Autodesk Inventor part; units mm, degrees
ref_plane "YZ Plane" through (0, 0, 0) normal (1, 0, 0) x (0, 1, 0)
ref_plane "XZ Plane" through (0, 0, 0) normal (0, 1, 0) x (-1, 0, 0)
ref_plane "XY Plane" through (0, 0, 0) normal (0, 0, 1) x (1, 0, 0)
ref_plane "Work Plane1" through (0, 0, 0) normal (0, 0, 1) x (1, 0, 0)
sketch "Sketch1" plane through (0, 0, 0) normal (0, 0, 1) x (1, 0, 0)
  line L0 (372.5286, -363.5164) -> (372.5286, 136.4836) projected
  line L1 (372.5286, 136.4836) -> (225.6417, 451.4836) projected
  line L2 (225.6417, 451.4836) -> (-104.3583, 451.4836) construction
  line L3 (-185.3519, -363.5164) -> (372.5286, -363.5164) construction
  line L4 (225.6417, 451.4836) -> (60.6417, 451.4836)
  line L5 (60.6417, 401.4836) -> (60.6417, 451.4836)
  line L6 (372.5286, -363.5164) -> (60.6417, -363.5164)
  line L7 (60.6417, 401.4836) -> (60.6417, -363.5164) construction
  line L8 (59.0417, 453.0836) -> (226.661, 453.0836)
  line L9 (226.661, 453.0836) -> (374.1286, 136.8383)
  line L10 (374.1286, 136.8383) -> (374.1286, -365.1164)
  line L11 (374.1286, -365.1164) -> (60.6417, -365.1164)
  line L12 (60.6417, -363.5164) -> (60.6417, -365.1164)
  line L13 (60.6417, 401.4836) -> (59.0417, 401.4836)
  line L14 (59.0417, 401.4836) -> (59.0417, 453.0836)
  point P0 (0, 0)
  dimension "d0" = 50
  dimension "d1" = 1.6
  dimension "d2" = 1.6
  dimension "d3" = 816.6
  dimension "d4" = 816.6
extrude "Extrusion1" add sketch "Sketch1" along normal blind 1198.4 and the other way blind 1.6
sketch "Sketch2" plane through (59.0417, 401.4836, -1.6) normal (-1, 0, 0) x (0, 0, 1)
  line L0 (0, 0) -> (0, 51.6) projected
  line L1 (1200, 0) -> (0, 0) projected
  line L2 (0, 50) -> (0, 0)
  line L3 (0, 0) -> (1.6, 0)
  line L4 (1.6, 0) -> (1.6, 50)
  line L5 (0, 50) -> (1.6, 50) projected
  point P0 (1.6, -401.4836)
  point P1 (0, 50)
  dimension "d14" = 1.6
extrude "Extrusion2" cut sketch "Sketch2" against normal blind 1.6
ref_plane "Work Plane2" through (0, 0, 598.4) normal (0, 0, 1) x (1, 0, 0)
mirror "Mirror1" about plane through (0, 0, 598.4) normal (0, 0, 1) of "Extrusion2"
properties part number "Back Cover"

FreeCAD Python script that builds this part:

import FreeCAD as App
import Part
import Sketcher
Q = App.Units.Quantity

doc = App.newDocument("Part")
body = doc.addObject("PartDesign::Body", "Body")

# Sketch on XY plane
sketch1 = body.newObject("Sketcher::SketchObject", "Sketch")
sketch1.AttachmentSupport = (doc.getObject("XY_Plane"), [""])
sketch1.MapMode = "FlatFace"
sketch1.addGeometry(Part.LineSegment(App.Vector(372.5, 136.5, 0), App.Vector(372.5, -363.5, 0)), False)
sketch1.addGeometry(Part.LineSegment(App.Vector(372.5, -363.5, 0), App.Vector(60.6, -363.5, 0)), False)
sketch1.addGeometry(Part.LineSegment(App.Vector(60.6, -363.5, 0), App.Vector(60.6, -365.1, 0)), False)
sketch1.addGeometry(Part.LineSegment(App.Vector(60.6, -365.1, 0), App.Vector(374.1, -365.1, 0)), False)
sketch1.addGeometry(Part.LineSegment(App.Vector(374.1, -365.1, 0), App.Vector(374.1, 136.8, 0)), False)
sketch1.addGeometry(Part.LineSegment(App.Vector(374.1, 136.8, 0), App.Vector(226.7, 453.1, 0)), False)
sketch1.addGeometry(Part.LineSegment(App.Vector(226.7, 453.1, 0), App.Vector(59, 453.1, 0)), False)
sketch1.addGeometry(Part.LineSegment(App.Vector(59, 453.1, 0), App.Vector(59, 401.5, 0)), False)
sketch1.addGeometry(Part.LineSegment(App.Vector(59, 401.5, 0), App.Vector(60.6, 401.5, 0)), False)
sketch1.addGeometry(Part.LineSegment(App.Vector(60.6, 401.5, 0), App.Vector(60.6, 451.5, 0)), False)
sketch1.addGeometry(Part.LineSegment(App.Vector(60.6, 451.5, 0), App.Vector(225.6, 451.5, 0)), False)
sketch1.addGeometry(Part.LineSegment(App.Vector(225.6, 451.5, 0), App.Vector(372.5, 136.5, 0)), False)
sketch1.addConstraint(Sketcher.Constraint("Coincident", 0, 2, 1, 1))
sketch1.addConstraint(Sketcher.Constraint("Coincident", 1, 2, 2, 1))
sketch1.addConstraint(Sketcher.Constraint("Coincident", 2, 2, 3, 1))
sketch1.addConstraint(Sketcher.Constraint("Coincident", 3, 2, 4, 1))
sketch1.addConstraint(Sketcher.Constraint("Coincident", 4, 2, 5, 1))
sketch1.addConstraint(Sketcher.Constraint("Coincident", 5, 2, 6, 1))
sketch1.addConstraint(Sketcher.Constraint("Coincident", 6, 2, 7, 1))
sketch1.addConstraint(Sketcher.Constraint("Coincident", 7, 2, 8, 1))
sketch1.addConstraint(Sketcher.Constraint("Coincident", 8, 2, 9, 1))
sketch1.addConstraint(Sketcher.Constraint("Coincident", 9, 2, 10, 1))
sketch1.addConstraint(Sketcher.Constraint("Coincident", 10, 2, 11, 1))
sketch1.addConstraint(Sketcher.Constraint("Coincident", 11, 2, 0, 1))
sketch1.addConstraint(Sketcher.Constraint("Vertical", 0))
sketch1.addConstraint(Sketcher.Constraint("Horizontal", 1))
sketch1.addConstraint(Sketcher.Constraint("Vertical", 2))
sketch1.addConstraint(Sketcher.Constraint("Horizontal", 3))
sketch1.addConstraint(Sketcher.Constraint("Vertical", 4))
sketch1.addConstraint(Sketcher.Constraint("Horizontal", 6))
sketch1.addConstraint(Sketcher.Constraint("Vertical", 7))
sketch1.addConstraint(Sketcher.Constraint("Horizontal", 8))
sketch1.addConstraint(Sketcher.Constraint("Vertical", 9))
sketch1.addConstraint(Sketcher.Constraint("Horizontal", 10))
sketch1.addConstraint(Sketcher.Constraint("Parallel", 5, 11))
sketch1.addConstraint(Sketcher.Constraint("Vertical", 2, 2, 8, 2))
sketch1.addConstraint(Sketcher.Constraint("Equal", 8, 2))
sketch1.addConstraint(Sketcher.Constraint("DistanceX", 8, 1, 8, 2, Q("0.063 in")))
sketch1.addConstraint(Sketcher.Constraint("DistanceY", 9, 1, 9, 2, Q("1.9685 in")))
sketch1.addConstraint(Sketcher.Constraint("Angle", 5, Q("115 deg")))
sketch1.addConstraint(Sketcher.Constraint("DistanceX", 0, 2, 3, 2, Q("0.063 in")))
sketch1.addConstraint(Sketcher.Constraint("DistanceY", 9, 2, 6, 2, Q("0.063 in")))
sketch1.addConstraint(Sketcher.Constraint("DistanceY", 0, 2, 5, 2, Q("32.1496 in")))
sketch1.addConstraint(Sketcher.Constraint("DistanceX", 1, 2, 1, 1, Q("12.279 in")))
sketch1.addConstraint(Sketcher.Constraint("DistanceY", 4, 1, 4, 2, Q("19.762 in")))
sketch1.addConstraint(Sketcher.Constraint("DistanceX", 10, 1, 10, 2, Q("165 mm")))
sketch1.addConstraint(Sketcher.Constraint("DistanceX", -1, 1, 0, 2, Q("372.5286 mm")))
sketch1.addConstraint(Sketcher.Constraint("DistanceY", 0, 2, -1, 1, Q("363.5164 mm")))
pad1 = body.newObject("PartDesign::Pad", "Pad")
pad1.Profile = sketch1
pad1.Type = "TwoLengths"
pad1.Length = Q("47.1811024 in")
pad1.Length2 = Q("0.0629921 in")

# Sketch on YZ plane
sketch2 = body.newObject("Sketcher::SketchObject", "Sketch001")
sketch2.AttachmentSupport = (doc.getObject("YZ_Plane"), [""])
sketch2.MapMode = "FlatFace"
sketch2.AttachmentOffset = App.Placement(App.Vector(0, 0, 59.0417), App.Rotation())
sketch2.addGeometry(Part.LineSegment(App.Vector(451.5, -1.6, 0), App.Vector(401.5, -1.6, 0)), False)
sketch2.addGeometry(Part.LineSegment(App.Vector(401.5, -1.6, 0), App.Vector(401.5, 0, 0)), False)
sketch2.addGeometry(Part.LineSegment(App.Vector(401.5, 0, 0), App.Vector(451.5, 0, 0)), False)
sketch2.addGeometry(Part.LineSegment(App.Vector(451.5, 0, 0), App.Vector(451.5, -1.6, 0)), False)
sketch2.addConstraint(Sketcher.Constraint("Coincident", 0, 2, 1, 1))
sketch2.addConstraint(Sketcher.Constraint("Coincident", 1, 2, 2, 1))
sketch2.addConstraint(Sketcher.Constraint("Coincident", 2, 2, 3, 1))
sketch2.addConstraint(Sketcher.Constraint("Coincident", 3, 2, 0, 1))
sketch2.addConstraint(Sketcher.Constraint("Horizontal", 0))
sketch2.addConstraint(Sketcher.Constraint("Vertical", 1))
sketch2.addConstraint(Sketcher.Constraint("Horizontal", 2))
sketch2.addConstraint(Sketcher.Constraint("Vertical", 3))
sketch2.addConstraint(Sketcher.Constraint("PointOnObject", 1, 2, -1))
sketch2.addConstraint(Sketcher.Constraint("DistanceY", 1, 1, 1, 2, Q("0.063 in")))
sketch2.addConstraint(Sketcher.Constraint("DistanceX", 0, 2, 0, 1, Q("1.9685 in")))
sketch2.addConstraint(Sketcher.Constraint("DistanceX", -1, 1, 0, 2, Q("401.4836 mm")))
pocket1 = body.newObject("PartDesign::Pocket", "Pocket")
pocket1.Profile = sketch2
pocket1.Length = Q("0.0629921 in")
pocket1.Reversed = True
doc.recompute()

datumplane = body.newObject("PartDesign::Plane", "DatumPlane")
datumplane.AttachmentSupport = (doc.getObject("XY_Plane"), [""])
datumplane.MapMode = "FlatFace"
datumplane.AttachmentOffset = App.Placement(App.Vector(0, 0, 598.4), App.Rotation())
mirrored = body.newObject("PartDesign::Mirrored", "Mirrored")
mirrored.Originals = [pocket1]
mirrored.MirrorPlane = (datumplane, [""])
body.Tip = mirrored

doc.recompute()
